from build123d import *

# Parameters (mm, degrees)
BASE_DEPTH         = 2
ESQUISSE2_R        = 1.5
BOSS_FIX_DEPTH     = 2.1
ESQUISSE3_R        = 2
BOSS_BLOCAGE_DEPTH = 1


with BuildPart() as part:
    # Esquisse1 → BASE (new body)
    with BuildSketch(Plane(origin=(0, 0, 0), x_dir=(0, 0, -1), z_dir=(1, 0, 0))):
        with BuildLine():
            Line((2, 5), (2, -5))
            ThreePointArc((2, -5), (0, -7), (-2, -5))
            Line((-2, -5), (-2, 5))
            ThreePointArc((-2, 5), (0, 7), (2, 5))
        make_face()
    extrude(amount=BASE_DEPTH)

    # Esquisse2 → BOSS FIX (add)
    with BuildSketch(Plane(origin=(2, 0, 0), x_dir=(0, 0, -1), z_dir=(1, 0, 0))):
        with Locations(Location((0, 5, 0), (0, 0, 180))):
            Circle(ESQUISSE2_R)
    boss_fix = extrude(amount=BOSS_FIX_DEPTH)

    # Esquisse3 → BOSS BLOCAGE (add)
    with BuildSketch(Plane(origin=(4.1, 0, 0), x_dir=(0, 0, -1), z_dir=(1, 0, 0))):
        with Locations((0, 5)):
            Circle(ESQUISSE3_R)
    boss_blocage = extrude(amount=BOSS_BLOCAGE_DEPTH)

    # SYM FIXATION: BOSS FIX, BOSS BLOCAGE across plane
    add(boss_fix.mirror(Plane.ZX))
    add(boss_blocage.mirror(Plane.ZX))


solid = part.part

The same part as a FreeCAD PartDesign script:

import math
import FreeCAD as App
import Part
import Sketcher

V = App.Vector

doc = App.newDocument("Part")
params = doc.addObject("Spreadsheet::Sheet", "Params")
for row, (alias, value) in enumerate([
    ("sketch1_radius", "2 mm"),
    ("sketch1_width", "10 mm"),
    ("pad1_length", "2 mm"),
    ("sketch2_diameter", "3 mm"),
    ("pad2_length", "2.1 mm"),
    ("sketch3_diameter", "4 mm"),
    ("pad3_length", "1 mm"),
], start=1):
    params.set(f"A{row}", alias)
    params.set(f"B{row}", "=" + value)
    params.setAlias(f"B{row}", alias)

body = doc.addObject("PartDesign::Body", "Body")

sketch1 = body.newObject("Sketcher::SketchObject", "Sketch")
sketch1.AttachmentSupport = (doc.getObject("YZ_Plane"), [""])
sketch1.MapMode = "FlatFace"
sketch1.addGeometry(Part.LineSegment(V(-5, -2, 0), V(5, -2, 0)), False)
sketch1.addGeometry(Part.ArcOfCircle(Part.Circle(V(5, 0, 0), V(0, 0, 1), 2), math.radians(-90), math.radians(90)), False)
sketch1.addGeometry(Part.LineSegment(V(5, 2, 0), V(-5, 2, 0)), False)
sketch1.addGeometry(Part.ArcOfCircle(Part.Circle(V(-5, 0, 0), V(0, 0, 1), 2), math.radians(90), math.radians(270)), False)
sketch1.addConstraint(Sketcher.Constraint("Tangent", 0, 2, 1, 1))
sketch1.addConstraint(Sketcher.Constraint("Tangent", 1, 2, 2, 1))
sketch1.addConstraint(Sketcher.Constraint("Tangent", 2, 2, 3, 1))
sketch1.addConstraint(Sketcher.Constraint("Tangent", 3, 2, 0, 1))
sketch1.addConstraint(Sketcher.Constraint("Horizontal", 0))
sketch1.addConstraint(Sketcher.Constraint("Horizontal", 2))
sketch1.addConstraint(Sketcher.Constraint("Symmetric", 1, 3, 3, 3, -1, 1))
sketch1.addConstraint(Sketcher.Constraint("Radius", 1, 2.0))
sketch1.addConstraint(Sketcher.Constraint("DistanceX", 0, 1, 0, 2, 10.0))
sketch1.setExpression("Constraints[7]", "Params.sketch1_radius")
sketch1.setExpression("Constraints[8]", "Params.sketch1_width")
pad1 = body.newObject("PartDesign::Pad", "Pad")
pad1.Profile = sketch1
pad1.setExpression("Length", "Params.pad1_length")

sketch2 = body.newObject("Sketcher::SketchObject", "Sketch001")
sketch2.AttachmentSupport = (doc.getObject("YZ_Plane"), [""])
sketch2.MapMode = "FlatFace"
sketch2.AttachmentOffset = App.Placement(V(0, 0, 2), App.Rotation())
sketch2.addGeometry(Part.Circle(V(5, 0, 0), V(0, 0, 1), 1.5), False)
sketch2.addConstraint(Sketcher.Constraint("PointOnObject", 0, 3, -1))
sketch2.addConstraint(Sketcher.Constraint("Diameter", 0, 3.0))
sketch2.addConstraint(Sketcher.Constraint("DistanceX", -1, 1, 0, 3, 5.0))
sketch2.setExpression("Constraints[1]", "Params.sketch2_diameter")
pad2 = body.newObject("PartDesign::Pad", "Pad001")
pad2.Profile = sketch2
pad2.setExpression("Length", "Params.pad2_length")

sketch3 = body.newObject("Sketcher::SketchObject", "Sketch002")
sketch3.AttachmentSupport = (doc.getObject("YZ_Plane"), [""])
sketch3.MapMode = "FlatFace"
sketch3.AttachmentOffset = App.Placement(V(0, 0, 4.1), App.Rotation())
sketch3.addGeometry(Part.Circle(V(5, 0, 0), V(0, 0, 1), 2), False)
sketch3.addConstraint(Sketcher.Constraint("PointOnObject", 0, 3, -1))
sketch3.addConstraint(Sketcher.Constraint("Diameter", 0, 4.0))
sketch3.addConstraint(Sketcher.Constraint("DistanceX", -1, 1, 0, 3, 5.0))
sketch3.setExpression("Constraints[1]", "Params.sketch3_diameter")
pad3 = body.newObject("PartDesign::Pad", "Pad002")
pad3.Profile = sketch3
pad3.setExpression("Length", "Params.pad3_length")
doc.recompute()

mirrored = body.newObject("PartDesign::Mirrored", "Mirrored")
mirrored.Originals = [pad2, pad3]
mirrored.MirrorPlane = (doc.getObject("XZ_Plane"), [""])
body.Tip = mirrored

doc.recompute()
